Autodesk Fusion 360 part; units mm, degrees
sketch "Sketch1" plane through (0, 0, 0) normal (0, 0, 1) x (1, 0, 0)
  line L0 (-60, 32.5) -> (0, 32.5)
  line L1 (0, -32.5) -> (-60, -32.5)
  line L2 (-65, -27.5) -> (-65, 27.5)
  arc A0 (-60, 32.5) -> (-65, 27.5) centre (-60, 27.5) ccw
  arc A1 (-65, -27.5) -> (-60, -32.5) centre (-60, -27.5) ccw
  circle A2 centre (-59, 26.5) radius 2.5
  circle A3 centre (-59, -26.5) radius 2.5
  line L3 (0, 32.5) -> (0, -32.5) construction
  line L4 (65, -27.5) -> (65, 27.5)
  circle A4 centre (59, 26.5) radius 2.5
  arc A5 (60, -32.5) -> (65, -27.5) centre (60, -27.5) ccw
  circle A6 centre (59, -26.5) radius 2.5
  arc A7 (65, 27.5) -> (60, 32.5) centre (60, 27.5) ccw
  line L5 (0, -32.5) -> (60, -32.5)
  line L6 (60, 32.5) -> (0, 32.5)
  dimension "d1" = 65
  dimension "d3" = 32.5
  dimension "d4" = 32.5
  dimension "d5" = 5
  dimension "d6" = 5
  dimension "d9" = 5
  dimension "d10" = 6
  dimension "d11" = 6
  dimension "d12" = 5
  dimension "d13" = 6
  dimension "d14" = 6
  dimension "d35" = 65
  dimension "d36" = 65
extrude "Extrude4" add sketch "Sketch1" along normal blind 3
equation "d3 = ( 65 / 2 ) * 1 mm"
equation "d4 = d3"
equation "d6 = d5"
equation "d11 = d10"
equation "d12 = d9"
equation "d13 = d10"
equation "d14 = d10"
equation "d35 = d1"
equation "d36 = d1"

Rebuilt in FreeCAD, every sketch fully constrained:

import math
import FreeCAD as App
import Part
import Sketcher
from FreeCAD import Vector

doc = App.newDocument("Part")
body = doc.addObject("PartDesign::Body", "Body")

# Sketch on XY plane
sketch1 = body.newObject("Sketcher::SketchObject", "Sketch")
sketch1.AttachmentSupport = (doc.getObject("XY_Plane"), [""])
sketch1.MapMode = "FlatFace"
sketch1.addGeometry(Part.LineSegment(Vector(60, 32.5, 0), Vector(-60, 32.5, 0)), False)
sketch1.addGeometry(Part.ArcOfCircle(Part.Circle(Vector(-60, 27.5, 0), Vector(0, 0, 1), 5), math.radians(90), math.radians(180)), False)
sketch1.addGeometry(Part.LineSegment(Vector(-65, 27.5, 0), Vector(-65, -27.5, 0)), False)
sketch1.addGeometry(Part.ArcOfCircle(Part.Circle(Vector(-60, -27.5, 0), Vector(0, 0, 1), 5), math.radians(180), math.radians(270)), False)
sketch1.addGeometry(Part.LineSegment(Vector(-60, -32.5, 0), Vector(60, -32.5, 0)), False)
sketch1.addGeometry(Part.ArcOfCircle(Part.Circle(Vector(60, -27.5, 0), Vector(0, 0, 1), 5), math.radians(-90), math.radians(0)), False)
sketch1.addGeometry(Part.LineSegment(Vector(65, -27.5, 0), Vector(65, 27.5, 0)), False)
sketch1.addGeometry(Part.ArcOfCircle(Part.Circle(Vector(60, 27.5, 0), Vector(0, 0, 1), 5), math.radians(0), math.radians(90)), False)
sketch1.addGeometry(Part.Circle(Vector(-59, -26.5, 0), Vector(0, 0, 1), 2.5), False)
sketch1.addGeometry(Part.Circle(Vector(59, -26.5, 0), Vector(0, 0, 1), 2.5), False)
sketch1.addGeometry(Part.Circle(Vector(-59, 26.5, 0), Vector(0, 0, 1), 2.5), False)
sketch1.addGeometry(Part.Circle(Vector(59, 26.5, 0), Vector(0, 0, 1), 2.5), False)
sketch1.addConstraint(Sketcher.Constraint("Tangent", 0, 2, 1, 1))
sketch1.addConstraint(Sketcher.Constraint("Tangent", 1, 2, 2, 1))
sketch1.addConstraint(Sketcher.Constraint("Tangent", 2, 2, 3, 1))
sketch1.addConstraint(Sketcher.Constraint("Tangent", 3, 2, 4, 1))
sketch1.addConstraint(Sketcher.Constraint("Tangent", 4, 2, 5, 1))
sketch1.addConstraint(Sketcher.Constraint("Tangent", 5, 2, 6, 1))
sketch1.addConstraint(Sketcher.Constraint("Tangent", 6, 2, 7, 1))
sketch1.addConstraint(Sketcher.Constraint("Tangent", 7, 2, 0, 1))
sketch1.addConstraint(Sketcher.Constraint("Horizontal", 0))
sketch1.addConstraint(Sketcher.Constraint("Vertical", 2))
sketch1.addConstraint(Sketcher.Constraint("Horizontal", 4))
sketch1.addConstraint(Sketcher.Constraint("Vertical", 6))
sketch1.addConstraint(Sketcher.Constraint("Equal", 1, 3))
sketch1.addConstraint(Sketcher.Constraint("Equal", 3, 5))
sketch1.addConstraint(Sketcher.Constraint("Equal", 5, 7))
sketch1.addConstraint(Sketcher.Constraint("Equal", 8, 9))
sketch1.addConstraint(Sketcher.Constraint("Equal", 9, 10))
sketch1.addConstraint(Sketcher.Constraint("Equal", 10, 11))
sketch1.addConstraint(Sketcher.Constraint("Symmetric", 1, 3, 5, 3, -1, 1))
sketch1.addConstraint(Sketcher.Constraint("Symmetric", 9, 3, 10, 3, -1, 1))
sketch1.addConstraint(Sketcher.Constraint("Symmetric", 8, 3, 11, 3, -1, 1))
sketch1.addConstraint(Sketcher.Constraint("Symmetric", 8, 3, 9, 3, -2))
sketch1.addConstraint(Sketcher.Constraint("Diameter", 8, 5.0))
sketch1.addConstraint(Sketcher.Constraint("Radius", 1, 5.0))
sketch1.addConstraint(Sketcher.Constraint("DistanceX", 1, 2, -1, 1, 65.0))
sketch1.addConstraint(Sketcher.Constraint("DistanceY", 10, 3, 0, 2, 6.0))
sketch1.addConstraint(Sketcher.Constraint("DistanceX", 1, 2, 10, 3, 6.0))
sketch1.addConstraint(Sketcher.Constraint("DistanceY", -1, 1, 0, 2, 32.5))
pad1 = body.newObject("PartDesign::Pad", "Pad")
pad1.Profile = sketch1
pad1.Length = 3

doc.recompute()
